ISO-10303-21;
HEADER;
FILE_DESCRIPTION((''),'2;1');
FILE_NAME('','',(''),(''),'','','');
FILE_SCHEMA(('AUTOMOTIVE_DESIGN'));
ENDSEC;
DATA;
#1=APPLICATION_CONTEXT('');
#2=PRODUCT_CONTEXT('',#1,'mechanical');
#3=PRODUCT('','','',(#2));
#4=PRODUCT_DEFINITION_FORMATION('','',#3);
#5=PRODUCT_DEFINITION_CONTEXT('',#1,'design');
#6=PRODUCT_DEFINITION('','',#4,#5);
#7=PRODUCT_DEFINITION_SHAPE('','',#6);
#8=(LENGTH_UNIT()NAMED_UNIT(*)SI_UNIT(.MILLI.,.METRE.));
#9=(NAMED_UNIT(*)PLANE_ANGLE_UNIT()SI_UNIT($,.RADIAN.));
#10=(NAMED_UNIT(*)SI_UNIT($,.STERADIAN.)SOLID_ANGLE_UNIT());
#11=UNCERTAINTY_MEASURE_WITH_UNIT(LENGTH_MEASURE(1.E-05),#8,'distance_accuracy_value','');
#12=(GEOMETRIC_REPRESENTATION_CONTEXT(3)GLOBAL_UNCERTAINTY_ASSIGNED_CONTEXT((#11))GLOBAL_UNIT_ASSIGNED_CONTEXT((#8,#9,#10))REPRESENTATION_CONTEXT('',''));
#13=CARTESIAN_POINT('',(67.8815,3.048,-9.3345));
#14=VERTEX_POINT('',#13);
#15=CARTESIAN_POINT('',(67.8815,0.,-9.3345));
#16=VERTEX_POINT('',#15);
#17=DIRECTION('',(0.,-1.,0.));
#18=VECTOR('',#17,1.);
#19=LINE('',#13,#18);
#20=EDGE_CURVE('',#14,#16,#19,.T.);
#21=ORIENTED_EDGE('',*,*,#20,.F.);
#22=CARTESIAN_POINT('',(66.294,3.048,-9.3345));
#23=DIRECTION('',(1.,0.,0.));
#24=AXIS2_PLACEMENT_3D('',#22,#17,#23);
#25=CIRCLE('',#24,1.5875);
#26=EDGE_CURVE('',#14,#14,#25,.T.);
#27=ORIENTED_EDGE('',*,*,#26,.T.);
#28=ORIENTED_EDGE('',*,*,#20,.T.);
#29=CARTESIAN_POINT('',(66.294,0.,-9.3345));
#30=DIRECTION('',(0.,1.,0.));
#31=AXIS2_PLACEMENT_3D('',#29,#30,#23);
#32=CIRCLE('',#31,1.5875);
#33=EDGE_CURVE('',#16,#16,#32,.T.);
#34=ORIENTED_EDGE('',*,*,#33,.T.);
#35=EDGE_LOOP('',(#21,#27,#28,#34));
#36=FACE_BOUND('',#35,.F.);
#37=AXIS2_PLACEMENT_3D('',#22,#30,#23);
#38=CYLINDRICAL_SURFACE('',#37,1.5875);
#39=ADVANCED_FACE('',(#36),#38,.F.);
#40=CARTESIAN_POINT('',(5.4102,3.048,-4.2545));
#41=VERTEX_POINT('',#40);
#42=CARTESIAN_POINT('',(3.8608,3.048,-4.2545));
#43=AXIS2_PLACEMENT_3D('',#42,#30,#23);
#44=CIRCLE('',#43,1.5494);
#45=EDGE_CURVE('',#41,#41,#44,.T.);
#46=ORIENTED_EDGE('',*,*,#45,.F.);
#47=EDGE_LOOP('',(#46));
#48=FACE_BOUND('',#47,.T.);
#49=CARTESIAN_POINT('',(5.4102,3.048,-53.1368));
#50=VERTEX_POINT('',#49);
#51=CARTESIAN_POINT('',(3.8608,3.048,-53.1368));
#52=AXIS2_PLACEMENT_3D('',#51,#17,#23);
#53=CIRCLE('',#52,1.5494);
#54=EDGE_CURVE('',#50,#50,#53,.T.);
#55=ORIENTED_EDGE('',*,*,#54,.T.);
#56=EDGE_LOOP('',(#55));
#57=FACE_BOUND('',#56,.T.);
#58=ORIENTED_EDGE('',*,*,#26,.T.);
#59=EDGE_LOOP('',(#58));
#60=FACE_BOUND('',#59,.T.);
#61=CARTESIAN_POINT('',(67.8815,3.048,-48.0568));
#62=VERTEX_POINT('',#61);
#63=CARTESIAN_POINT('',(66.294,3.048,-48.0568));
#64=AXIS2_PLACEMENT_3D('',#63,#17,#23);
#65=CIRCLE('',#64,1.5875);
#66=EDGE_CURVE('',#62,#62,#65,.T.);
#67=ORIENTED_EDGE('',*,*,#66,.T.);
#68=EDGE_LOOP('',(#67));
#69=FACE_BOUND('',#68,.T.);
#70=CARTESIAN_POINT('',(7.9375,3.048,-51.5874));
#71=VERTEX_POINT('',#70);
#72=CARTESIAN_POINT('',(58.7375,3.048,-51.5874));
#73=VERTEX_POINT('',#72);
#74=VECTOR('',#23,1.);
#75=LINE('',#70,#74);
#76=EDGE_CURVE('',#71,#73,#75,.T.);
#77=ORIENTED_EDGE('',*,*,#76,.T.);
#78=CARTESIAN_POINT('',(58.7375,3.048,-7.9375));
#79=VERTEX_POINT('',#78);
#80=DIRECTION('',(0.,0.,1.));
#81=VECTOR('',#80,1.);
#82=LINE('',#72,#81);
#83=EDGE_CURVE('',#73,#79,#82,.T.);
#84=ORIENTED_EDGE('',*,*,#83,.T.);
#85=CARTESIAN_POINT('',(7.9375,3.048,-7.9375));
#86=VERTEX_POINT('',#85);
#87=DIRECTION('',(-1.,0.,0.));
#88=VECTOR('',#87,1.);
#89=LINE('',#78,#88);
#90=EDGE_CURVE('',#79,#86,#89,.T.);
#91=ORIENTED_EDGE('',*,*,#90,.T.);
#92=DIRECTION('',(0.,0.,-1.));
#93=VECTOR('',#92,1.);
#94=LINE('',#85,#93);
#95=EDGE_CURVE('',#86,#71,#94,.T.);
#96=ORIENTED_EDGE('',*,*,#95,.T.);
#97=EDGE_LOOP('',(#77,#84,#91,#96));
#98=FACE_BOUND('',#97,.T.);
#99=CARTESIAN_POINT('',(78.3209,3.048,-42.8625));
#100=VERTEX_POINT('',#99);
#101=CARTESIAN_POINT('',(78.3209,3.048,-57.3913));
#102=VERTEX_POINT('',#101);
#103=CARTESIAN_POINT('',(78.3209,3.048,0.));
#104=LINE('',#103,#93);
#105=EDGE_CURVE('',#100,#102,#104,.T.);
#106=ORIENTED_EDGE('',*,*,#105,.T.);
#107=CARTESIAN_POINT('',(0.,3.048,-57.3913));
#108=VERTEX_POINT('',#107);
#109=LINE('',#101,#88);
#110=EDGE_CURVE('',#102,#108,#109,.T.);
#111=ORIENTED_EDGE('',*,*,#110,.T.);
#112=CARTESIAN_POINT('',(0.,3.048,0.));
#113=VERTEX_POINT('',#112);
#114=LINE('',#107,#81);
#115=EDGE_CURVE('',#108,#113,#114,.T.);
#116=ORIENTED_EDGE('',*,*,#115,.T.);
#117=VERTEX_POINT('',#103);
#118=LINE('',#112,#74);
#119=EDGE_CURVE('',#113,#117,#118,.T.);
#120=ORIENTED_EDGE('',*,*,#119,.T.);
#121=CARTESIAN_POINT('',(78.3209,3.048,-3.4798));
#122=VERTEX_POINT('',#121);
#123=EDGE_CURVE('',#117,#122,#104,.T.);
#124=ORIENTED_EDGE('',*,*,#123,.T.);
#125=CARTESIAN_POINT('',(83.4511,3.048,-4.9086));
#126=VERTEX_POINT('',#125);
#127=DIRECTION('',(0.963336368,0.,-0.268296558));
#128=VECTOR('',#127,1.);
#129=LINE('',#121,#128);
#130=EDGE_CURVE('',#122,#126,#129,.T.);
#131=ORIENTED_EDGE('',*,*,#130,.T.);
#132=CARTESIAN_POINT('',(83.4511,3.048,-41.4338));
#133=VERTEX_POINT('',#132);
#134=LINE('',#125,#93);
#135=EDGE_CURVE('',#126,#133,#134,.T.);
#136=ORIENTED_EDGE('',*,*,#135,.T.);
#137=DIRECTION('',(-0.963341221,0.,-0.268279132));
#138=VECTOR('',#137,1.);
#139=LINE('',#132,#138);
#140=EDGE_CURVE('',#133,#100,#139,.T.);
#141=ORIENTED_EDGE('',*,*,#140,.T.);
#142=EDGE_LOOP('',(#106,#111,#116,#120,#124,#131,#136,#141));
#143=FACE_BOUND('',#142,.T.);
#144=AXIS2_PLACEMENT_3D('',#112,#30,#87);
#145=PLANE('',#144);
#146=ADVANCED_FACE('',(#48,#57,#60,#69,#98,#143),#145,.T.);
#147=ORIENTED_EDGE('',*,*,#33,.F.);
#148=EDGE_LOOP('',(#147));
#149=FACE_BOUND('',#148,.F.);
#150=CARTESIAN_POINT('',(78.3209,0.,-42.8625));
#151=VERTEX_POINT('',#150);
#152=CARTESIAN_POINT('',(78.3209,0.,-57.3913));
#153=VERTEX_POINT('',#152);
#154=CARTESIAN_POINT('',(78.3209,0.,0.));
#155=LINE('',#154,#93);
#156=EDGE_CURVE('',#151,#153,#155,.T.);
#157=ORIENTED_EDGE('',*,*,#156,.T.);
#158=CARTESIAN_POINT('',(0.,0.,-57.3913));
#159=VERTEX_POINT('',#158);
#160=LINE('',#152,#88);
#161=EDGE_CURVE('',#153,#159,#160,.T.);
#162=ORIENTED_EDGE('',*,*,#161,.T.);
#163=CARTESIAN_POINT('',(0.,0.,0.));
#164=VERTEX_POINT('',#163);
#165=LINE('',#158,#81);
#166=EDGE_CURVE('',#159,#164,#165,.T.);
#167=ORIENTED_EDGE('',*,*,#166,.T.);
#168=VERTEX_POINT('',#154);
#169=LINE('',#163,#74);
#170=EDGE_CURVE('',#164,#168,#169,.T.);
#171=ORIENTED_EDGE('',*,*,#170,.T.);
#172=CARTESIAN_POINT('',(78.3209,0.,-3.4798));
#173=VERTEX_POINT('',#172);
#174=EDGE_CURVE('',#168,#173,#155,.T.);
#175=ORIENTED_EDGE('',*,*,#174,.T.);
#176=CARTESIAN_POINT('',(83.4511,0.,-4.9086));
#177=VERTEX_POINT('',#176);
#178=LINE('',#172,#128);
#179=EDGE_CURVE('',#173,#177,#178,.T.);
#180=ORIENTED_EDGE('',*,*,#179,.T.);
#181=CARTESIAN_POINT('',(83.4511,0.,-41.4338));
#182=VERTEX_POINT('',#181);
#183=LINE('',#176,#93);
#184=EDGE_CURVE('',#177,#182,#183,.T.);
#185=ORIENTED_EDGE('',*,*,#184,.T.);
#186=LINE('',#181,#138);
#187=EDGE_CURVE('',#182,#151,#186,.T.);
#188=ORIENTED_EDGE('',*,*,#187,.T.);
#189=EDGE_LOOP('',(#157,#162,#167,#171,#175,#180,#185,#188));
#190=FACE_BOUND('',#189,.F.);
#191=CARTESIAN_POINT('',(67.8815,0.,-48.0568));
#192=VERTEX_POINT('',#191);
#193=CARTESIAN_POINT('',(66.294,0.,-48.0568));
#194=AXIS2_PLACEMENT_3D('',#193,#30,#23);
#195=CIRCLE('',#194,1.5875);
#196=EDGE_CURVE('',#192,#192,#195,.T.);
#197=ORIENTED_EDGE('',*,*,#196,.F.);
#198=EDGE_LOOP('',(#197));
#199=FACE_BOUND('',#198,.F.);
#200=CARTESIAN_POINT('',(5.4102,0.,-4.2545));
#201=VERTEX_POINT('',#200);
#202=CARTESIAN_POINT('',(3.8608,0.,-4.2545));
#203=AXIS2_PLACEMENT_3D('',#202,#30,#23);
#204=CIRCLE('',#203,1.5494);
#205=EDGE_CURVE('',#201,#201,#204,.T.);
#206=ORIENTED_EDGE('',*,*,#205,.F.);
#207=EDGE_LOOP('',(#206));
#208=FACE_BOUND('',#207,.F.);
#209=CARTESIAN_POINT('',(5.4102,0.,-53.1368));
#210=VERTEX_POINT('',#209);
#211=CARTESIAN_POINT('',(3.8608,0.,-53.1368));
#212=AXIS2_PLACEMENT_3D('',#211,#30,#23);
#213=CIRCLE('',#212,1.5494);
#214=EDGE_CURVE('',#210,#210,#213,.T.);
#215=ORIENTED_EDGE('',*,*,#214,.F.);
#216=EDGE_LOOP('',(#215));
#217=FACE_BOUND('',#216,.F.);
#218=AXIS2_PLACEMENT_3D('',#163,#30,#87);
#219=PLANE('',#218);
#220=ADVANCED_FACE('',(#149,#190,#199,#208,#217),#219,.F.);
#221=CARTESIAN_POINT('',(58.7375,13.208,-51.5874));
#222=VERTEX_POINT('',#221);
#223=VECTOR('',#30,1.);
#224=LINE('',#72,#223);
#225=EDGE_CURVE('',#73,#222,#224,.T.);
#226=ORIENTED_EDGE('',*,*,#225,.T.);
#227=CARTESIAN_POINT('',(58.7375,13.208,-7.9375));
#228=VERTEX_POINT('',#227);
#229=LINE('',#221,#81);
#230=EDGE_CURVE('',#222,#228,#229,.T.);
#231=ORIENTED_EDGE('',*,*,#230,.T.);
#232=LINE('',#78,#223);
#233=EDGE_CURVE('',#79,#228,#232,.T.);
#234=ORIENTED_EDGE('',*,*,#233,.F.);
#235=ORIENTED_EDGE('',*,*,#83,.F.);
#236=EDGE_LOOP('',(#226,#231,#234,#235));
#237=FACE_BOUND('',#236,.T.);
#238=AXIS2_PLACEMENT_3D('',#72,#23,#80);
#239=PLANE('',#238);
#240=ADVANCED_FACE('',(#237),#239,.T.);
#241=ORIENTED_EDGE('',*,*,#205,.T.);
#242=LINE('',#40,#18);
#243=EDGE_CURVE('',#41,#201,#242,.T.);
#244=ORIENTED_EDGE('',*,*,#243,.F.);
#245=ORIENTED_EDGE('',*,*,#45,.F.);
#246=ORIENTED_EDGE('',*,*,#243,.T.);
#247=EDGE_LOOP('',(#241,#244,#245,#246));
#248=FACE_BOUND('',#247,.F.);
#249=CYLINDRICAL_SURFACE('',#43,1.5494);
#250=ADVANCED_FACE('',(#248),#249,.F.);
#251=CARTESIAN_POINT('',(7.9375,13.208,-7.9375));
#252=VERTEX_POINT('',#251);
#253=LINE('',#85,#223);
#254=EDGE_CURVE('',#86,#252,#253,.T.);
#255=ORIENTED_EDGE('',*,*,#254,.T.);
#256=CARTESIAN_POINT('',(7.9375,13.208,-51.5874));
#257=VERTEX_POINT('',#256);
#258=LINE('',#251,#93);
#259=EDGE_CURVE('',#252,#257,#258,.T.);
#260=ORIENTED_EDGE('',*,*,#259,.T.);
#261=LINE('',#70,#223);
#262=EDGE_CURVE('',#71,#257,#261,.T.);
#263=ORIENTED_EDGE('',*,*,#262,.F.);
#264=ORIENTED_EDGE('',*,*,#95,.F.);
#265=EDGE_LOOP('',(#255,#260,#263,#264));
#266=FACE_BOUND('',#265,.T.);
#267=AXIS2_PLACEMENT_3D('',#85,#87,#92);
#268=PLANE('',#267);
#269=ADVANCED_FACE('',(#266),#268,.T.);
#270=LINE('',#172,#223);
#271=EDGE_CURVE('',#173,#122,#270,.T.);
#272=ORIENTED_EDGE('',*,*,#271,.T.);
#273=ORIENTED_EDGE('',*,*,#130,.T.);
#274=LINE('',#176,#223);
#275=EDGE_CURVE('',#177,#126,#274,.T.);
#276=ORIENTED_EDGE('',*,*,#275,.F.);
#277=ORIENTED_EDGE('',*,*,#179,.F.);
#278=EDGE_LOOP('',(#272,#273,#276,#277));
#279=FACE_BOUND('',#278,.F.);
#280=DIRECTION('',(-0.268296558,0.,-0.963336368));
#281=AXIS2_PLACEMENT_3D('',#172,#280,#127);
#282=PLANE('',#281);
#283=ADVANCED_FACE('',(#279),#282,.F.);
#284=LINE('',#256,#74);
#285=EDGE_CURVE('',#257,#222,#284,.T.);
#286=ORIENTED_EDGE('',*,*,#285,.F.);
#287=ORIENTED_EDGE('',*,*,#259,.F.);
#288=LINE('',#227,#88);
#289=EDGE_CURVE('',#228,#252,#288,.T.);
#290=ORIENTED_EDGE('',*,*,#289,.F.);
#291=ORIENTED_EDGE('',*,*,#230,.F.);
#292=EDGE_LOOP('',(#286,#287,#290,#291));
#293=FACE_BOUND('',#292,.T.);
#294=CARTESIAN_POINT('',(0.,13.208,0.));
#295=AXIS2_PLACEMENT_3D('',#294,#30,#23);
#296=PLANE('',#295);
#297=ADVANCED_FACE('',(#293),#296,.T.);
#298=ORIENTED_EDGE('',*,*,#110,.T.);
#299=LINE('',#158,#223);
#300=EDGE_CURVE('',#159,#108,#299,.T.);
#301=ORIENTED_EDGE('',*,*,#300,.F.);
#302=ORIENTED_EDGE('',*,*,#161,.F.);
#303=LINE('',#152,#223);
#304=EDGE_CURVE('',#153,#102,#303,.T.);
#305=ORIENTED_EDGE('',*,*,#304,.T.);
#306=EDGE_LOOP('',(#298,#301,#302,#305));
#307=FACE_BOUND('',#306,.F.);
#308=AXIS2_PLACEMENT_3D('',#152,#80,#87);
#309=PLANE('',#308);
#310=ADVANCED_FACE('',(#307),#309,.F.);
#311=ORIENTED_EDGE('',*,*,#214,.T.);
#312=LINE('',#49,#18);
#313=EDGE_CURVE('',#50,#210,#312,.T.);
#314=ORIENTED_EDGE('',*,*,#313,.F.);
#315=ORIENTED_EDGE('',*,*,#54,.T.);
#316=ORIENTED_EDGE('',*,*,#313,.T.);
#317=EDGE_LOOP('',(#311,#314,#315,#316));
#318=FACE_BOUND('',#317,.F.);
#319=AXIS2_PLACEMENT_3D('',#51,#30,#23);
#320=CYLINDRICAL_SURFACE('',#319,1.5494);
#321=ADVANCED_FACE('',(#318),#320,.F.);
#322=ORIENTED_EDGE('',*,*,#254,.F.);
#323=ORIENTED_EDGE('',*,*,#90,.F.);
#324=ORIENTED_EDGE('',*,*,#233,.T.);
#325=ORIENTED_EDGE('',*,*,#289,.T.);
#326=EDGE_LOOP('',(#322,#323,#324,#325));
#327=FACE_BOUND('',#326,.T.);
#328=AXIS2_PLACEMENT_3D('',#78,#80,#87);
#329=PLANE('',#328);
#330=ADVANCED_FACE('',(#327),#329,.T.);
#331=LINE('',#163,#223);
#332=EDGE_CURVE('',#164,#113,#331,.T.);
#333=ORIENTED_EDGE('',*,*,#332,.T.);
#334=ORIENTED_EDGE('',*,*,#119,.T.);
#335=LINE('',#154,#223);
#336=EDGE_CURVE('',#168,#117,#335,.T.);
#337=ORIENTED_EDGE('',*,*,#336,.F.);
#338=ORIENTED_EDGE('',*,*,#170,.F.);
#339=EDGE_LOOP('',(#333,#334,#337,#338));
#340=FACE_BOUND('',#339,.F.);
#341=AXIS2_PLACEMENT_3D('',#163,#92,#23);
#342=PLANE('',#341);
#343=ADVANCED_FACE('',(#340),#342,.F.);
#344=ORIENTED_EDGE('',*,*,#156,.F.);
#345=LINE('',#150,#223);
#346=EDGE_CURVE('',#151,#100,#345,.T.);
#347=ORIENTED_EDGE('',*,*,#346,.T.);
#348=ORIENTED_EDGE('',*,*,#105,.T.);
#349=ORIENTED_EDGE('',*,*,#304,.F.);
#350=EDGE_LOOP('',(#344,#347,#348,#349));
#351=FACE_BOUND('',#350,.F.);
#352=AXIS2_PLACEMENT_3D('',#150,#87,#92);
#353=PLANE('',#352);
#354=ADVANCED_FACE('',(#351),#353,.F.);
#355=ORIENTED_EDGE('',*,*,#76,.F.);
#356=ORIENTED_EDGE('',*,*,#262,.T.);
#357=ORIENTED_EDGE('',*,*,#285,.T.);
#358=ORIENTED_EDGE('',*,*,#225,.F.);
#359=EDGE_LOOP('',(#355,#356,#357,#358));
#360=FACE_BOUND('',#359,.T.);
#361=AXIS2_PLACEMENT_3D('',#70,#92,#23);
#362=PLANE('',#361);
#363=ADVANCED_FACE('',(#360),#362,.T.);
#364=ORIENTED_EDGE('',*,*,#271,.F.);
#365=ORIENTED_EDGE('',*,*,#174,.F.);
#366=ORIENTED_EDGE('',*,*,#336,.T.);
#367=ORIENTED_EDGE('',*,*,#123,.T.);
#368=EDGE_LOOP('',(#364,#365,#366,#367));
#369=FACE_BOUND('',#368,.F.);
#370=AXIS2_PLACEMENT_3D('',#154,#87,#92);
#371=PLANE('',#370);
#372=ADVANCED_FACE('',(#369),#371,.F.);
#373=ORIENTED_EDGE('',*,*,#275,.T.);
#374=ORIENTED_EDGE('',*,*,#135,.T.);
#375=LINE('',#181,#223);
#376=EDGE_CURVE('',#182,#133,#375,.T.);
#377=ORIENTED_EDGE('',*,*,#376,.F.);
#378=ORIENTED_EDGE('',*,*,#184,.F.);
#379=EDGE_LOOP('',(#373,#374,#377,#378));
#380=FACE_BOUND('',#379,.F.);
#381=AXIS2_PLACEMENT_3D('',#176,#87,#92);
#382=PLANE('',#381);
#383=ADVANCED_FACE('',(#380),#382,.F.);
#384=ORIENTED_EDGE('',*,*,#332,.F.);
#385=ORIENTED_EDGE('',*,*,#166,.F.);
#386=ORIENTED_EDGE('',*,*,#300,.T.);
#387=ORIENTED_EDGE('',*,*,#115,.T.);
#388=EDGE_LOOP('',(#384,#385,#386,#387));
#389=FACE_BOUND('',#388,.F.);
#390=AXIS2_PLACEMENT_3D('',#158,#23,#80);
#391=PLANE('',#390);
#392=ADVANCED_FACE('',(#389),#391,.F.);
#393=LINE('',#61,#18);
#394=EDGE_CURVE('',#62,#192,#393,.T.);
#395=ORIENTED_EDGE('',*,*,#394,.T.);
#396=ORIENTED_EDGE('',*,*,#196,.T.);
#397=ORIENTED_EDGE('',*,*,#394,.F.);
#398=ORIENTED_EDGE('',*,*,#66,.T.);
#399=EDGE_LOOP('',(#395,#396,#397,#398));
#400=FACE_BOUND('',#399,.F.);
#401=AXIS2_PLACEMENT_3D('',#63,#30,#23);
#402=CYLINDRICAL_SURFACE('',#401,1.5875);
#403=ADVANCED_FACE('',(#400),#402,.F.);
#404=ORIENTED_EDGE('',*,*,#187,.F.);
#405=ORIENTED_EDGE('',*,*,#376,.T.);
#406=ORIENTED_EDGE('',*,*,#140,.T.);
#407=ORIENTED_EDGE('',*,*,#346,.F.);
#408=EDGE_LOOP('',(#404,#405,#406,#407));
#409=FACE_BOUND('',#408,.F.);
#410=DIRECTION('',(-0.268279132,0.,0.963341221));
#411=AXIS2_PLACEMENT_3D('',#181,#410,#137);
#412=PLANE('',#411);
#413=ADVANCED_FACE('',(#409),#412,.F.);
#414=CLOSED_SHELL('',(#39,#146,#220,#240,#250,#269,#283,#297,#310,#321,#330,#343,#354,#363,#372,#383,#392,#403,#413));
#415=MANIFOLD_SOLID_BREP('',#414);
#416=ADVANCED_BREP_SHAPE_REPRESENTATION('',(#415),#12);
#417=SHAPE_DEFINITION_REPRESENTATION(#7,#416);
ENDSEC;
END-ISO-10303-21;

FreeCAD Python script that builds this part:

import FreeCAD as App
import Part
import Sketcher

V = App.Vector
Q = App.Units.Quantity


def add_polygon(sketch, points):
    """Adds a closed chain of lines whose ends are joined by coincident constraints."""
    first, n = sketch.GeometryCount, len(points)
    for a, b in zip(points, points[1:] + points[:1]):
        sketch.addGeometry(Part.LineSegment(App.Vector(*a, 0), App.Vector(*b, 0)), False)
    for i in range(n):
        sketch.addConstraint(Sketcher.Constraint("Coincident", first + i, 2, first + (i + 1) % n, 1))

doc = App.newDocument("Part")
body = doc.addObject("PartDesign::Body", "Body")

sketch1 = body.newObject("Sketcher::SketchObject", "Sketch")
sketch1.AttachmentSupport = (doc.getObject("XZ_Plane"), [""])
sketch1.MapMode = "FlatFace"
add_polygon(sketch1, [(0, -57.4), (0, 0), (78.3, 0), (78.3, -3.5), (83.5, -4.9), (83.5, -41.4), (78.3, -42.9), (78.3, -57.4)])
sketch1.addConstraint([
    Sketcher.Constraint("Vertical", 0),
    Sketcher.Constraint("Horizontal", 1),
    Sketcher.Constraint("Vertical", 2),
    Sketcher.Constraint("Vertical", 4),
    Sketcher.Constraint("Vertical", 6),
    Sketcher.Constraint("Horizontal", 7),
    Sketcher.Constraint("Coincident", 0, 2, -1, 1),
    Sketcher.Constraint("Vertical", 2, 2, 5, 2),
    Sketcher.Constraint("Equal", 3, 5),
    Sketcher.Constraint("DistanceY", 4, 2, 4, 1, Q("1.438 in")),
    Sketcher.Constraint("DistanceY", 6, 2, 6, 1, Q("0.572 in")),
    Sketcher.Constraint("DistanceX", 1, 1, 1, 2, Q("3.0835 in")),
    Sketcher.Constraint("DistanceY", 0, 1, 0, 2, Q("2.2595 in")),
    Sketcher.Constraint("DistanceY", 5, 2, 2, 2, Q("1.5505 in")),
    Sketcher.Constraint("DistanceX", 2, 2, 3, 2, 5.1302),
])
pad1 = body.newObject("PartDesign::Pad", "Pad")
pad1.Profile = sketch1
pad1.Length = Q("0.12 in")
pad1.Reversed = True

sketch2 = body.newObject("Sketcher::SketchObject", "Sketch001")
sketch2.AttachmentSupport = (doc.getObject("XZ_Plane"), [""])
sketch2.MapMode = "FlatFace"
sketch2.AttachmentOffset = App.Placement(V(0, 0, -0.12 * 25.4), App.Rotation())
sketch2.addGeometry([
    Part.Circle(V(66.3, -48.1, 0), V(0, 0, 1), 1.6),
    Part.Circle(V(3.9, -53.1, 0), V(0, 0, 1), 1.5),
    Part.Circle(V(66.3, -9.3, 0), V(0, 0, 1), 1.6),
    Part.Circle(V(3.9, -4.3, 0), V(0, 0, 1), 1.5),
], False)
sketch2.addConstraint([
    Sketcher.Constraint("Equal", 0, 2),
    Sketcher.Constraint("Equal", 1, 3),
    Sketcher.Constraint("Vertical", 0, 3, 2, 3),
    Sketcher.Constraint("Vertical", 1, 3, 3, 3),
    Sketcher.Constraint("Diameter", 0, Q("0.125 in")),
    Sketcher.Constraint("Diameter", 1, Q("0.122 in")),
    Sketcher.Constraint("DistanceY", 1, 3, 0, 3, Q("0.2 in")),
    Sketcher.Constraint("DistanceY", 2, 3, 3, 3, Q("0.2 in")),
    Sketcher.Constraint("DistanceX", -1, 1, 0, 3, Q("2.61 in")),
    Sketcher.Constraint("DistanceY", 0, 3, -1, 1, Q("1.892 in")),
    Sketcher.Constraint("DistanceX", -1, 1, 1, 3, Q("0.152 in")),
    Sketcher.Constraint("DistanceY", 2, 3, -1, 1, Q("0.3675 in")),
])
pocket1 = body.newObject("PartDesign::Pocket", "Pocket")
pocket1.Profile = sketch2
pocket1.Length = Q("0.12 in")
pocket1.Reversed = True

sketch3 = body.newObject("Sketcher::SketchObject", "Sketch002")
sketch3.AttachmentSupport = (doc.getObject("XZ_Plane"), [""])
sketch3.MapMode = "FlatFace"
sketch3.AttachmentOffset = App.Placement(V(0, 0, -0.12 * 25.4), App.Rotation())
add_polygon(sketch3, [(59, -52), (8, -52), (8, -8), (59, -8)])
sketch3.addConstraint([
    Sketcher.Constraint("Horizontal", 0),
    Sketcher.Constraint("Vertical", 1),
    Sketcher.Constraint("Horizontal", 2),
    Sketcher.Constraint("Vertical", 3),
    Sketcher.Constraint("DistanceX", 0, 2, 0, 1, Q("2 in")),
    Sketcher.Constraint("DistanceY", 1, 1, 1, 2, Q("1.7185 in")),
    Sketcher.Constraint("DistanceX", -1, 1, 0, 2, Q("0.3125 in")),
    Sketcher.Constraint("DistanceY", 0, 2, -1, 1, Q("2.031 in")),
])
pad2 = body.newObject("PartDesign::Pad", "Pad001")
pad2.Profile = sketch3
pad2.Length = Q("0.4 in")
pad2.Reversed = True

doc.recompute()
